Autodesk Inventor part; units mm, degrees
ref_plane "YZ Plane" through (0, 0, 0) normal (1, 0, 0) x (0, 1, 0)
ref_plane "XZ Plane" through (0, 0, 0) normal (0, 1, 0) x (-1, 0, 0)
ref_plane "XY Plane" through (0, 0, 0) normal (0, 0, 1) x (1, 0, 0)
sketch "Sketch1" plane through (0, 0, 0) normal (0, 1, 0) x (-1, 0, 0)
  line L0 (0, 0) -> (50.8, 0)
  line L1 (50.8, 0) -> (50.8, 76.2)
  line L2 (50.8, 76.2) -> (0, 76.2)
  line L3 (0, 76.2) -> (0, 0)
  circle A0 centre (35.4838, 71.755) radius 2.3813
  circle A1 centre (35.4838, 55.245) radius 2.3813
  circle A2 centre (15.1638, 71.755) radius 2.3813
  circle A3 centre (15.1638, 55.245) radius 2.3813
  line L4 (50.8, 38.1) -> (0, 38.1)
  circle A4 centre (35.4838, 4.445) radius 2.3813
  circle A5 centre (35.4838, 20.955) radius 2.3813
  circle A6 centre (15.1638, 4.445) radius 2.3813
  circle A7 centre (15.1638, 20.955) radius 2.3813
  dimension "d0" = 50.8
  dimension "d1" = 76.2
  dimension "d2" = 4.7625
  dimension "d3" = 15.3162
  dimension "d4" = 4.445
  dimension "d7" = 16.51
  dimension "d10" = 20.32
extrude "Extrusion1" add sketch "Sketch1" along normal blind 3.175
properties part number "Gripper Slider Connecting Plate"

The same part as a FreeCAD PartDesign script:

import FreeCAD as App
import Part
import Sketcher
Q = App.Units.Quantity

doc = App.newDocument("Part")
body = doc.addObject("PartDesign::Body", "Body")

# Sketch on XZ plane
sketch1 = body.newObject("Sketcher::SketchObject", "Sketch")
sketch1.AttachmentSupport = (doc.getObject("XZ_Plane"), [""])
sketch1.MapMode = "FlatFace"
sketch1.addGeometry([
    Part.LineSegment(App.Vector(0, 0, 0), App.Vector(-50.8, 0, 0)),  # 0
    Part.LineSegment(App.Vector(-50.8, 0, 0), App.Vector(-50.8, 76.2, 0)),  # 1
    Part.LineSegment(App.Vector(-50.8, 76.2, 0), App.Vector(0, 76.2, 0)),  # 2
    Part.LineSegment(App.Vector(0, 76.2, 0), App.Vector(0, 0, 0)),  # 3
    Part.Circle(App.Vector(-15.2, 4.4, 0), App.Vector(0, 0, 1), 2.4),  # 4
    Part.Circle(App.Vector(-15.2, 21, 0), App.Vector(0, 0, 1), 2.4),  # 5
    Part.Circle(App.Vector(-35.5, 4.4, 0), App.Vector(0, 0, 1), 2.4),  # 6
    Part.Circle(App.Vector(-35.5, 21, 0), App.Vector(0, 0, 1), 2.4),  # 7
    Part.Circle(App.Vector(-35.5, 71.8, 0), App.Vector(0, 0, 1), 2.4),  # 8
    Part.Circle(App.Vector(-15.2, 55.2, 0), App.Vector(0, 0, 1), 2.4),  # 9
    Part.Circle(App.Vector(-15.2, 71.8, 0), App.Vector(0, 0, 1), 2.4),  # 10
    Part.Circle(App.Vector(-35.5, 55.2, 0), App.Vector(0, 0, 1), 2.4),  # 11
], False)
sketch1.addConstraint([
    Sketcher.Constraint("Coincident", 0, 2, 1, 1),
    Sketcher.Constraint("Coincident", 1, 2, 2, 1),
    Sketcher.Constraint("Coincident", 2, 2, 3, 1),
    Sketcher.Constraint("Coincident", 3, 2, 0, 1),
    Sketcher.Constraint("Horizontal", 0),
    Sketcher.Constraint("Vertical", 1),
    Sketcher.Constraint("Horizontal", 2),
    Sketcher.Constraint("Vertical", 3),
    Sketcher.Constraint("Coincident", 3, 2, -1, 1),
    Sketcher.Constraint("Equal", 4, 5),
    Sketcher.Constraint("Equal", 5, 6),
    Sketcher.Constraint("Equal", 6, 7),
    Sketcher.Constraint("Equal", 7, 8),
    Sketcher.Constraint("Equal", 8, 9),
    Sketcher.Constraint("Equal", 9, 10),
    Sketcher.Constraint("Equal", 10, 11),
    Sketcher.Constraint("Horizontal", 4, 3, 6, 3),
    Sketcher.Constraint("Horizontal", 5, 3, 7, 3),
    Sketcher.Constraint("Horizontal", 8, 3, 10, 3),
    Sketcher.Constraint("Horizontal", 9, 3, 11, 3),
    Sketcher.Constraint("Vertical", 4, 3, 5, 3),
    Sketcher.Constraint("Vertical", 6, 3, 7, 3),
    Sketcher.Constraint("Vertical", 7, 3, 8, 3),
    Sketcher.Constraint("Vertical", 5, 3, 9, 3),
    Sketcher.Constraint("Vertical", 9, 3, 10, 3),
    Sketcher.Constraint("Vertical", 8, 3, 11, 3),
    Sketcher.Constraint("DistanceX", 0, 2, 0, 1, Q("2 in")),
    Sketcher.Constraint("DistanceY", 1, 1, 1, 2, Q("3 in")),
    Sketcher.Constraint("Diameter", 4, Q("0.1875 in")),
    Sketcher.Constraint("DistanceY", 7, 3, 8, 3, Q("2 in")),
    Sketcher.Constraint("DistanceY", 4, 3, 9, 3, Q("2 in")),
    Sketcher.Constraint("DistanceX", 6, 3, 4, 3, Q("0.8 in")),
    Sketcher.Constraint("DistanceY", 4, 3, 5, 3, Q("0.65 in")),
    Sketcher.Constraint("DistanceY", -1, 1, 4, 3, Q("0.175 in")),
    Sketcher.Constraint("DistanceX", 0, 2, 6, 3, Q("0.603 in")),
])
pad1 = body.newObject("PartDesign::Pad", "Pad")
pad1.Profile = sketch1
pad1.Length = Q("0.125 in")
pad1.Reversed = True

doc.recompute()
